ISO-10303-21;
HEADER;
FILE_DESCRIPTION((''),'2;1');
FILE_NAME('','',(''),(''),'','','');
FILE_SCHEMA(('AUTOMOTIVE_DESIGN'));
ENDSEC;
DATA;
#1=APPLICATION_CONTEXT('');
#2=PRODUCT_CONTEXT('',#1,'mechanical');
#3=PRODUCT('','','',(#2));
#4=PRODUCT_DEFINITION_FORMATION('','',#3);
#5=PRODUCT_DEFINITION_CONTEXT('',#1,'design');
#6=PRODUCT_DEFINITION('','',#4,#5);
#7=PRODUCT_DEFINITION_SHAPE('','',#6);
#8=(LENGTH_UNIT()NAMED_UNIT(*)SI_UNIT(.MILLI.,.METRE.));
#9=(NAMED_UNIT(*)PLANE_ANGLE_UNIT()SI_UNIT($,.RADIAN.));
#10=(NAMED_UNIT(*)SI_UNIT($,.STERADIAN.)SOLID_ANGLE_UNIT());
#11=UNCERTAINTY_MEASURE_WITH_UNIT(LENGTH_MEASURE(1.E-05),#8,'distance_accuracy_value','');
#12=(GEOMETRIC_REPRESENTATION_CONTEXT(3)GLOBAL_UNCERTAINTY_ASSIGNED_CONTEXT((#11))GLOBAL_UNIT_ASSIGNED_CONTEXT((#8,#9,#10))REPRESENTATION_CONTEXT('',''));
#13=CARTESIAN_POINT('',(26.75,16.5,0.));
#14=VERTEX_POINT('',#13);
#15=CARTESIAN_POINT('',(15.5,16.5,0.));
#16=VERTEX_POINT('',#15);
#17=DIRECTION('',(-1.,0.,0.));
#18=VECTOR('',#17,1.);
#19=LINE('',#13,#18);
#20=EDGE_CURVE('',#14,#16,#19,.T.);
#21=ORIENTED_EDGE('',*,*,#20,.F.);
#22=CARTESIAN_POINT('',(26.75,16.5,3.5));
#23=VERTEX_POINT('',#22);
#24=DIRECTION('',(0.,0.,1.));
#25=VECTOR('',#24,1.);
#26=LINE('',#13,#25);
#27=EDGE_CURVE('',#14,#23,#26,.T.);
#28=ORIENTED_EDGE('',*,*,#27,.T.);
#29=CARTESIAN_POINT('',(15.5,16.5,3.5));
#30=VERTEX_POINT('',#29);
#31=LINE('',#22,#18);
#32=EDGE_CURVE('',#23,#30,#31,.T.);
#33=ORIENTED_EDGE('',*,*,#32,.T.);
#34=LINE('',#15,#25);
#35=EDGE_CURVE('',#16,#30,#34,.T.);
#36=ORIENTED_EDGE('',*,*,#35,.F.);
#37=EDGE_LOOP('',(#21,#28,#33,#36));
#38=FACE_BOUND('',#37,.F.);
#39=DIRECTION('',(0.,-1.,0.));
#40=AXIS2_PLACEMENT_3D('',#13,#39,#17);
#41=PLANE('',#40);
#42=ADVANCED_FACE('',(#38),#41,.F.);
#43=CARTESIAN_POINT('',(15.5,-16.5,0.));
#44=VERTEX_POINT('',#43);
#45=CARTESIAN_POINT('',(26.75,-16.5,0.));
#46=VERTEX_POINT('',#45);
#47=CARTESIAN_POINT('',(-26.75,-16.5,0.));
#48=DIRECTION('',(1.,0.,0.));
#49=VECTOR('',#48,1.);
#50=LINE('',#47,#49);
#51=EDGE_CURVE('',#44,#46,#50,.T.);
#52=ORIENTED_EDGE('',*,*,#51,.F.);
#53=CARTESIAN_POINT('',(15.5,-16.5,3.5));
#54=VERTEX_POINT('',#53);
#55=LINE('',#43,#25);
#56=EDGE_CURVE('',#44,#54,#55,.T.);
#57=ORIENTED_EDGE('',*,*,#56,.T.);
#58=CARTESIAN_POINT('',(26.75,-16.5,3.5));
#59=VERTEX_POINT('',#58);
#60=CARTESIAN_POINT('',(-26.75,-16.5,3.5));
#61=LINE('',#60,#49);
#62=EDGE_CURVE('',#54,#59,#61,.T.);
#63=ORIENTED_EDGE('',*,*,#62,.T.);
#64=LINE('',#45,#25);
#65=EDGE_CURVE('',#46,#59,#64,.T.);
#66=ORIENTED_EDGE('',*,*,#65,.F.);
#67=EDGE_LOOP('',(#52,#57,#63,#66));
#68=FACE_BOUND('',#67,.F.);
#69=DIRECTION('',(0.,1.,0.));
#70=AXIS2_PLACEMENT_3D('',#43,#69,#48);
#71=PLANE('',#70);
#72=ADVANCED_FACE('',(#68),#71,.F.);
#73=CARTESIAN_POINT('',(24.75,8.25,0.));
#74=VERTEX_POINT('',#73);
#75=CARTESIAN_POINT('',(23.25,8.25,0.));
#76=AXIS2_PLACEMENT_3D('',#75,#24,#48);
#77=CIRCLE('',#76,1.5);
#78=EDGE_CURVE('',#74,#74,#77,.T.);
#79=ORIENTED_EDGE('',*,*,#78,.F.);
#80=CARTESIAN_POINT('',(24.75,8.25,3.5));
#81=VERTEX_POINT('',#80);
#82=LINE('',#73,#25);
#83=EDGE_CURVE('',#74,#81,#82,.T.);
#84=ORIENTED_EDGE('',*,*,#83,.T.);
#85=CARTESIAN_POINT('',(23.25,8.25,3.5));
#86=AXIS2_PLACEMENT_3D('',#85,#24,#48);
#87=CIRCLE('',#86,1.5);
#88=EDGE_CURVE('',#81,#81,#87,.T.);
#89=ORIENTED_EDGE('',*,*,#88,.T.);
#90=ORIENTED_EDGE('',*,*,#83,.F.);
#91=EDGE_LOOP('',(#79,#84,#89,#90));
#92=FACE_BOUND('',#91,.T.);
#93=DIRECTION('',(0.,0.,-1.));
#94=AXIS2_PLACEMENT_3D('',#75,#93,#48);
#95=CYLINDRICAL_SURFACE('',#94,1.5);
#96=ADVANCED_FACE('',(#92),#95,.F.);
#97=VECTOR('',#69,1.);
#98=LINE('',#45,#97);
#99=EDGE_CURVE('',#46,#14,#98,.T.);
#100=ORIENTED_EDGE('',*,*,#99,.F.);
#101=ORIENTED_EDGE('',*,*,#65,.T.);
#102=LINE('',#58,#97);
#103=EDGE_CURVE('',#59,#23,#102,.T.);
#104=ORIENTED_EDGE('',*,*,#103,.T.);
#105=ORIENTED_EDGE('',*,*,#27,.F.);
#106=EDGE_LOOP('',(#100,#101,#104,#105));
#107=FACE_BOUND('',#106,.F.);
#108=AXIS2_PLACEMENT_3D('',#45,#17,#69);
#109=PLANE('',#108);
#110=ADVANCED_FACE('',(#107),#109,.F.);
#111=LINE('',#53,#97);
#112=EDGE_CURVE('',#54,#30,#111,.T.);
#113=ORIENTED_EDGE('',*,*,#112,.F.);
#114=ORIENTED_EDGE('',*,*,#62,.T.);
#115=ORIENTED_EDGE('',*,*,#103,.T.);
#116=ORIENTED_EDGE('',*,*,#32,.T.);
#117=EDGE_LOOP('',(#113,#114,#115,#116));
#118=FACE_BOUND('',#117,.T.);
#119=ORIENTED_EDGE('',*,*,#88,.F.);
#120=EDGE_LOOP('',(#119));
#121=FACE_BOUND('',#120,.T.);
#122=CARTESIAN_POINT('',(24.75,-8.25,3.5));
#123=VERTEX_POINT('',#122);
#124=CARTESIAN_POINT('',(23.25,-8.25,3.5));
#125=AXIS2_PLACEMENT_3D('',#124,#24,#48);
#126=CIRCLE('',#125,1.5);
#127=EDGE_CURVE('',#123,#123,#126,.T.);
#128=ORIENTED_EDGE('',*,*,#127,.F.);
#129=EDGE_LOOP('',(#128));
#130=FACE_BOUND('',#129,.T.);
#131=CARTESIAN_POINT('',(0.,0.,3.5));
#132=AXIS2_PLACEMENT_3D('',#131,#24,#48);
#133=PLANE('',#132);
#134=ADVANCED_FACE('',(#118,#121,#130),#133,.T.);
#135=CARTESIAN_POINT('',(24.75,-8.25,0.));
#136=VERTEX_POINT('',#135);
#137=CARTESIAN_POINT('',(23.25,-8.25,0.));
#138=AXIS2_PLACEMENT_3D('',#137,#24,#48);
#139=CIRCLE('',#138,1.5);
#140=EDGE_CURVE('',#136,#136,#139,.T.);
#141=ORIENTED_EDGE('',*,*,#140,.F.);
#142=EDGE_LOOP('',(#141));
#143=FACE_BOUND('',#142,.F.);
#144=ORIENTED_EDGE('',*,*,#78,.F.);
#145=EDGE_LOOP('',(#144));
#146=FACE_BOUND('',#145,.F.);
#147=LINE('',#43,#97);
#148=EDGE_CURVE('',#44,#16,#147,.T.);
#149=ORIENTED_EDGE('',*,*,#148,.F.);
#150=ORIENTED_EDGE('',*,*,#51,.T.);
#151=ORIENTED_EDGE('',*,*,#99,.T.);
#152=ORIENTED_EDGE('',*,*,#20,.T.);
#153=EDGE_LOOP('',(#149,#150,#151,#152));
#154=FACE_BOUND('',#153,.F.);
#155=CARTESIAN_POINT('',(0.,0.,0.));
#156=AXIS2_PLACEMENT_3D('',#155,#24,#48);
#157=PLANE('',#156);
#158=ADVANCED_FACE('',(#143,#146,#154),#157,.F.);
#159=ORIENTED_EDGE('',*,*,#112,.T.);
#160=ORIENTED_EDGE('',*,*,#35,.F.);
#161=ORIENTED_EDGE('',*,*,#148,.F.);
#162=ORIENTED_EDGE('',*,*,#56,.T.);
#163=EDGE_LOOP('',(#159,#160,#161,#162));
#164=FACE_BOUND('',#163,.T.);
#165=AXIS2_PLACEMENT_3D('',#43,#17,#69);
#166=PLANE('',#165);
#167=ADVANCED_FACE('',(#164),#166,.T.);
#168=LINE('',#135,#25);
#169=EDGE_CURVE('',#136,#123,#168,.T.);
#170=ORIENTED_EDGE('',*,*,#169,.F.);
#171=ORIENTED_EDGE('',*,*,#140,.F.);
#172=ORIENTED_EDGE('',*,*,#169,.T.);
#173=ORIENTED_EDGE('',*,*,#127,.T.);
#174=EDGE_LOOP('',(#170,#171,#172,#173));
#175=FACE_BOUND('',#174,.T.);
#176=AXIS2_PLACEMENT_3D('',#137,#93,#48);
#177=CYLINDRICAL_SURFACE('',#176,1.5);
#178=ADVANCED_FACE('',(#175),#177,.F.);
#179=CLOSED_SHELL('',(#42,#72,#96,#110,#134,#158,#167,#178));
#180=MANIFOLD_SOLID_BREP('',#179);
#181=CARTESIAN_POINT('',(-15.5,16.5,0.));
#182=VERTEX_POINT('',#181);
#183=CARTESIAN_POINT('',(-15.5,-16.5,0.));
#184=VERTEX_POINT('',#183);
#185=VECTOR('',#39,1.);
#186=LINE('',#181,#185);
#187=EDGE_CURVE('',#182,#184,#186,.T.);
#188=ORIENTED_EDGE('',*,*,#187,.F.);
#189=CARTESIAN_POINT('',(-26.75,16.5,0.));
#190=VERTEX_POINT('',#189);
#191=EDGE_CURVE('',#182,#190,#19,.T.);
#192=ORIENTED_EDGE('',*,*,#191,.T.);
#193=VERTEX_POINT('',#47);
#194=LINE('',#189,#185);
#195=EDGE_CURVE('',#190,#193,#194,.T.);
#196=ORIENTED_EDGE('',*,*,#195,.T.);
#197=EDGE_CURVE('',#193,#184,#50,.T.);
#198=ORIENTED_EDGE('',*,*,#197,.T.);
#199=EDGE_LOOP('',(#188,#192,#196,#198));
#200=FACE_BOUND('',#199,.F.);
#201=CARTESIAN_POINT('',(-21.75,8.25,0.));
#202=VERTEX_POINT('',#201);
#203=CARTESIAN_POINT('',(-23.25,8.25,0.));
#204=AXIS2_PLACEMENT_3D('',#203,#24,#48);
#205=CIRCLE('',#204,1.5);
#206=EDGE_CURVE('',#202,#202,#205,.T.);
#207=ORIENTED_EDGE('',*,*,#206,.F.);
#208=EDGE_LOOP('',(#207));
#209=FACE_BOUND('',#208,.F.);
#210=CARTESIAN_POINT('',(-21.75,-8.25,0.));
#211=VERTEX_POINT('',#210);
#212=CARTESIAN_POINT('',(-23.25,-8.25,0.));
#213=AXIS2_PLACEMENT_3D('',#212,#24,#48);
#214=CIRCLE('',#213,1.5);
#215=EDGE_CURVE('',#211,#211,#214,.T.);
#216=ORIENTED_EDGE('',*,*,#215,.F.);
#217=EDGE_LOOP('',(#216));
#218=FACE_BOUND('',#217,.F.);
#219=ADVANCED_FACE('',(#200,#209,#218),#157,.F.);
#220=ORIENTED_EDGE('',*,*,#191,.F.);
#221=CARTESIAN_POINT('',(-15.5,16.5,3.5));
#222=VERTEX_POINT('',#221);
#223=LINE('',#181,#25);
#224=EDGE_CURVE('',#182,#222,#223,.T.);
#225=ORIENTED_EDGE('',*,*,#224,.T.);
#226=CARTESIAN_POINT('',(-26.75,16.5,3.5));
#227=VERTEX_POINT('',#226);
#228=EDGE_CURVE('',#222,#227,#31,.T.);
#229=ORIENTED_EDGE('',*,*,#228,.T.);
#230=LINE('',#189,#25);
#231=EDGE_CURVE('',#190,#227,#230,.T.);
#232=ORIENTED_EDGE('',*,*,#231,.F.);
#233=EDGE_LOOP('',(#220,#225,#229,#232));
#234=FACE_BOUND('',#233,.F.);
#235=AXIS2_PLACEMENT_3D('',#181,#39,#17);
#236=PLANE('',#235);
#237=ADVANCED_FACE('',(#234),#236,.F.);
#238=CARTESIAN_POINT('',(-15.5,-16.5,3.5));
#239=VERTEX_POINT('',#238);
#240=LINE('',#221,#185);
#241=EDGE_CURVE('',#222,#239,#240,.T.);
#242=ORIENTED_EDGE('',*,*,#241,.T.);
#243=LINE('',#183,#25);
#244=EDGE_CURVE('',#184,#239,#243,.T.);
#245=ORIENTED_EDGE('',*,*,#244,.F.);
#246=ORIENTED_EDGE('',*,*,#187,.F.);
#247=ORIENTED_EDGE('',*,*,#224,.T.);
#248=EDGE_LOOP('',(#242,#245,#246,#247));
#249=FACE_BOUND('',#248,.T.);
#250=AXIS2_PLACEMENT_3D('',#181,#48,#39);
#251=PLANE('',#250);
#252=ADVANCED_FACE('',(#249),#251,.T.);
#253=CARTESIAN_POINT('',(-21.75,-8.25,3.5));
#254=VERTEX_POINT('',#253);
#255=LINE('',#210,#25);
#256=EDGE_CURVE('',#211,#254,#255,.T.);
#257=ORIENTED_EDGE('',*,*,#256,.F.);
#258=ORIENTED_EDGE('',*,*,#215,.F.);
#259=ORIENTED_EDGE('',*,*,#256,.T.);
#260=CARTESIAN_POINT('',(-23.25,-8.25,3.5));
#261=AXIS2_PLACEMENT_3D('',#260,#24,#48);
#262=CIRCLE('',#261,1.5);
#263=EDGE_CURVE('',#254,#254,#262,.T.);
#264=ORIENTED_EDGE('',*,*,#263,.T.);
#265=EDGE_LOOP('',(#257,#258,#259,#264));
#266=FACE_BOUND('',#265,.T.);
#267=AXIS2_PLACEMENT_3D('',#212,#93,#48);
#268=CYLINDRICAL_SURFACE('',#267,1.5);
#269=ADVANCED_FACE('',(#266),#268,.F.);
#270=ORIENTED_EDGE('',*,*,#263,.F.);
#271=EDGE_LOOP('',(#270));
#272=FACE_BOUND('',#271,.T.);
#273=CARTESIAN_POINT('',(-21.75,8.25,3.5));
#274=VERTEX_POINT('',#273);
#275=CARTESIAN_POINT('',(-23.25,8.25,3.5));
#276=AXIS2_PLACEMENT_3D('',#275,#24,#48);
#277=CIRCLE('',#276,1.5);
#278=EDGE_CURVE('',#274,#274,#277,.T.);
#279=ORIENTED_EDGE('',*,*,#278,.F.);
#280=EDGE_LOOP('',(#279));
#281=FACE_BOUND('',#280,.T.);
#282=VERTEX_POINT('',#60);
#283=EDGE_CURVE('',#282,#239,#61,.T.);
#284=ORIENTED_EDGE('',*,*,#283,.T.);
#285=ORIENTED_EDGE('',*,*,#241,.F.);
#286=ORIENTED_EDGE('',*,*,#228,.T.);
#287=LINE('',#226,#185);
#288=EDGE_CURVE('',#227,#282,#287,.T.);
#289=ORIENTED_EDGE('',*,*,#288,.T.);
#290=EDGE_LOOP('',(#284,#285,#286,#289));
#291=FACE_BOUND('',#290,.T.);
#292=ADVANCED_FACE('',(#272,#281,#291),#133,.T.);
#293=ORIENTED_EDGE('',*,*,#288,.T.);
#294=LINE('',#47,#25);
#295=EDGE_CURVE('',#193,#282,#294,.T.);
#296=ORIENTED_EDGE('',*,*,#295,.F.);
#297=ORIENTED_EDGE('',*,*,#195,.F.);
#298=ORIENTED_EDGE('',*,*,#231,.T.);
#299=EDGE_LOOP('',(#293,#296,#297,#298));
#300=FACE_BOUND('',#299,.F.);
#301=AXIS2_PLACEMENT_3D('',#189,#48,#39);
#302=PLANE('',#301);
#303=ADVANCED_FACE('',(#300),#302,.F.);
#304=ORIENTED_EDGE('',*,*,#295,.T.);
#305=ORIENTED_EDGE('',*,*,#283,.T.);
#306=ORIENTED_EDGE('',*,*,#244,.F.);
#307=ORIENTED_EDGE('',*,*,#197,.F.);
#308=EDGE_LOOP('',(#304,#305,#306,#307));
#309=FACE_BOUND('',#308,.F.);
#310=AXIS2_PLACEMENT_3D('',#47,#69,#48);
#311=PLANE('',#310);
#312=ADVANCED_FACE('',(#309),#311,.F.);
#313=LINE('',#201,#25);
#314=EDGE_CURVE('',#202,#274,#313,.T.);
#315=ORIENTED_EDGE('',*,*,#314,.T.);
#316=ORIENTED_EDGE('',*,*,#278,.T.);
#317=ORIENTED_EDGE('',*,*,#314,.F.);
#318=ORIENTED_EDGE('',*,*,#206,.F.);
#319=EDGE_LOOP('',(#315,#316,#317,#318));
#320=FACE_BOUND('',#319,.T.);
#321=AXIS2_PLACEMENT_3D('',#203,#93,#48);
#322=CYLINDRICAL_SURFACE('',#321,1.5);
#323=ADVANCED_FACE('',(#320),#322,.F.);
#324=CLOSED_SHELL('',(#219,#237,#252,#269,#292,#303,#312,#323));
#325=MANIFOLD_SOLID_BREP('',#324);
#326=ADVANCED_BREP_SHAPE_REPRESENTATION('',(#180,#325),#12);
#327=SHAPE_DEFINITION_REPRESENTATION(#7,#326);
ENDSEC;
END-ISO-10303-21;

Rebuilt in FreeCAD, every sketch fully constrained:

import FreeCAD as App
import Part
import Sketcher
Q = App.Units.Quantity


def add_polygon(sketch, points):
    """Adds a closed chain of lines whose ends are joined by coincident constraints."""
    first, n = sketch.GeometryCount, len(points)
    for a, b in zip(points, points[1:] + points[:1]):
        sketch.addGeometry(Part.LineSegment(App.Vector(*a, 0), App.Vector(*b, 0)), False)
    for i in range(n):
        sketch.addConstraint(Sketcher.Constraint("Coincident", first + i, 2, first + (i + 1) % n, 1))

doc = App.newDocument("Part")
body = doc.addObject("PartDesign::Body", "Body")
body.AllowCompound = True

# Sketch on XY plane
sketch1 = body.newObject("Sketcher::SketchObject", "Sketch")
sketch1.AttachmentSupport = (doc.getObject("XY_Plane"), [""])
sketch1.MapMode = "FlatFace"
add_polygon(sketch1, [(-26.8, 16.5), (-26.8, -16.5), (-15.5, -16.5), (-15.5, 16.5)])  # lines 0-3
sketch1.addGeometry(Part.Circle(App.Vector(-23.2, -8.2, 0), App.Vector(0, 0, 1), 1.5), False)  # 4
sketch1.addGeometry(Part.Circle(App.Vector(-23.2, 8.2, 0), App.Vector(0, 0, 1), 1.5), False)  # 5
add_polygon(sketch1, [(15.5, 16.5), (15.5, -16.5), (26.8, -16.5), (26.8, 16.5)])  # lines 6-9
sketch1.addGeometry(Part.Circle(App.Vector(23.2, -8.2, 0), App.Vector(0, 0, 1), 1.5), False)  # 10
sketch1.addGeometry(Part.Circle(App.Vector(23.2, 8.2, 0), App.Vector(0, 0, 1), 1.5), False)  # 11
sketch1.addConstraint(Sketcher.Constraint("Vertical", 0))
sketch1.addConstraint(Sketcher.Constraint("Horizontal", 1))
sketch1.addConstraint(Sketcher.Constraint("Vertical", 2))
sketch1.addConstraint(Sketcher.Constraint("Horizontal", 3))
sketch1.addConstraint(Sketcher.Constraint("Vertical", 6))
sketch1.addConstraint(Sketcher.Constraint("Horizontal", 7))
sketch1.addConstraint(Sketcher.Constraint("Vertical", 8))
sketch1.addConstraint(Sketcher.Constraint("Horizontal", 9))
sketch1.addConstraint(Sketcher.Constraint("Equal", 4, 5))
sketch1.addConstraint(Sketcher.Constraint("Equal", 5, 10))
sketch1.addConstraint(Sketcher.Constraint("Equal", 10, 11))
sketch1.addConstraint(Sketcher.Constraint("Symmetric", 5, 3, 10, 3, -1, 1))
sketch1.addConstraint(Sketcher.Constraint("Symmetric", 4, 3, 11, 3, -1, 1))
sketch1.addConstraint(Sketcher.Constraint("Symmetric", 2, 2, 6, 2, -1, 1))
sketch1.addConstraint(Sketcher.Constraint("Symmetric", 0, 2, 8, 2, -1, 1))
sketch1.addConstraint(Sketcher.Constraint("Symmetric", 4, 3, 10, 3, -2))
sketch1.addConstraint(Sketcher.Constraint("Horizontal", 1, 2, 6, 2))
sketch1.addConstraint(Sketcher.Constraint("Diameter", 4, Q("3 mm")))
sketch1.addConstraint(Sketcher.Constraint("DistanceY", 0, 2, 0, 1, Q("33 mm")))
sketch1.addConstraint(Sketcher.Constraint("DistanceX", 1, 2, 6, 2, Q("31 mm")))
sketch1.addConstraint(Sketcher.Constraint("DistanceX", 4, 3, -1, 1, Q("23.25 mm")))
sketch1.addConstraint(Sketcher.Constraint("DistanceY", 4, 3, -1, 1, Q("8.25 mm")))
sketch1.addConstraint(Sketcher.Constraint("DistanceX", 0, 2, 10, 3, Q("50 mm")))
pad1 = body.newObject("PartDesign::Pad", "Pad")
pad1.Profile = sketch1
pad1.Length = 3.5

doc.recompute()
